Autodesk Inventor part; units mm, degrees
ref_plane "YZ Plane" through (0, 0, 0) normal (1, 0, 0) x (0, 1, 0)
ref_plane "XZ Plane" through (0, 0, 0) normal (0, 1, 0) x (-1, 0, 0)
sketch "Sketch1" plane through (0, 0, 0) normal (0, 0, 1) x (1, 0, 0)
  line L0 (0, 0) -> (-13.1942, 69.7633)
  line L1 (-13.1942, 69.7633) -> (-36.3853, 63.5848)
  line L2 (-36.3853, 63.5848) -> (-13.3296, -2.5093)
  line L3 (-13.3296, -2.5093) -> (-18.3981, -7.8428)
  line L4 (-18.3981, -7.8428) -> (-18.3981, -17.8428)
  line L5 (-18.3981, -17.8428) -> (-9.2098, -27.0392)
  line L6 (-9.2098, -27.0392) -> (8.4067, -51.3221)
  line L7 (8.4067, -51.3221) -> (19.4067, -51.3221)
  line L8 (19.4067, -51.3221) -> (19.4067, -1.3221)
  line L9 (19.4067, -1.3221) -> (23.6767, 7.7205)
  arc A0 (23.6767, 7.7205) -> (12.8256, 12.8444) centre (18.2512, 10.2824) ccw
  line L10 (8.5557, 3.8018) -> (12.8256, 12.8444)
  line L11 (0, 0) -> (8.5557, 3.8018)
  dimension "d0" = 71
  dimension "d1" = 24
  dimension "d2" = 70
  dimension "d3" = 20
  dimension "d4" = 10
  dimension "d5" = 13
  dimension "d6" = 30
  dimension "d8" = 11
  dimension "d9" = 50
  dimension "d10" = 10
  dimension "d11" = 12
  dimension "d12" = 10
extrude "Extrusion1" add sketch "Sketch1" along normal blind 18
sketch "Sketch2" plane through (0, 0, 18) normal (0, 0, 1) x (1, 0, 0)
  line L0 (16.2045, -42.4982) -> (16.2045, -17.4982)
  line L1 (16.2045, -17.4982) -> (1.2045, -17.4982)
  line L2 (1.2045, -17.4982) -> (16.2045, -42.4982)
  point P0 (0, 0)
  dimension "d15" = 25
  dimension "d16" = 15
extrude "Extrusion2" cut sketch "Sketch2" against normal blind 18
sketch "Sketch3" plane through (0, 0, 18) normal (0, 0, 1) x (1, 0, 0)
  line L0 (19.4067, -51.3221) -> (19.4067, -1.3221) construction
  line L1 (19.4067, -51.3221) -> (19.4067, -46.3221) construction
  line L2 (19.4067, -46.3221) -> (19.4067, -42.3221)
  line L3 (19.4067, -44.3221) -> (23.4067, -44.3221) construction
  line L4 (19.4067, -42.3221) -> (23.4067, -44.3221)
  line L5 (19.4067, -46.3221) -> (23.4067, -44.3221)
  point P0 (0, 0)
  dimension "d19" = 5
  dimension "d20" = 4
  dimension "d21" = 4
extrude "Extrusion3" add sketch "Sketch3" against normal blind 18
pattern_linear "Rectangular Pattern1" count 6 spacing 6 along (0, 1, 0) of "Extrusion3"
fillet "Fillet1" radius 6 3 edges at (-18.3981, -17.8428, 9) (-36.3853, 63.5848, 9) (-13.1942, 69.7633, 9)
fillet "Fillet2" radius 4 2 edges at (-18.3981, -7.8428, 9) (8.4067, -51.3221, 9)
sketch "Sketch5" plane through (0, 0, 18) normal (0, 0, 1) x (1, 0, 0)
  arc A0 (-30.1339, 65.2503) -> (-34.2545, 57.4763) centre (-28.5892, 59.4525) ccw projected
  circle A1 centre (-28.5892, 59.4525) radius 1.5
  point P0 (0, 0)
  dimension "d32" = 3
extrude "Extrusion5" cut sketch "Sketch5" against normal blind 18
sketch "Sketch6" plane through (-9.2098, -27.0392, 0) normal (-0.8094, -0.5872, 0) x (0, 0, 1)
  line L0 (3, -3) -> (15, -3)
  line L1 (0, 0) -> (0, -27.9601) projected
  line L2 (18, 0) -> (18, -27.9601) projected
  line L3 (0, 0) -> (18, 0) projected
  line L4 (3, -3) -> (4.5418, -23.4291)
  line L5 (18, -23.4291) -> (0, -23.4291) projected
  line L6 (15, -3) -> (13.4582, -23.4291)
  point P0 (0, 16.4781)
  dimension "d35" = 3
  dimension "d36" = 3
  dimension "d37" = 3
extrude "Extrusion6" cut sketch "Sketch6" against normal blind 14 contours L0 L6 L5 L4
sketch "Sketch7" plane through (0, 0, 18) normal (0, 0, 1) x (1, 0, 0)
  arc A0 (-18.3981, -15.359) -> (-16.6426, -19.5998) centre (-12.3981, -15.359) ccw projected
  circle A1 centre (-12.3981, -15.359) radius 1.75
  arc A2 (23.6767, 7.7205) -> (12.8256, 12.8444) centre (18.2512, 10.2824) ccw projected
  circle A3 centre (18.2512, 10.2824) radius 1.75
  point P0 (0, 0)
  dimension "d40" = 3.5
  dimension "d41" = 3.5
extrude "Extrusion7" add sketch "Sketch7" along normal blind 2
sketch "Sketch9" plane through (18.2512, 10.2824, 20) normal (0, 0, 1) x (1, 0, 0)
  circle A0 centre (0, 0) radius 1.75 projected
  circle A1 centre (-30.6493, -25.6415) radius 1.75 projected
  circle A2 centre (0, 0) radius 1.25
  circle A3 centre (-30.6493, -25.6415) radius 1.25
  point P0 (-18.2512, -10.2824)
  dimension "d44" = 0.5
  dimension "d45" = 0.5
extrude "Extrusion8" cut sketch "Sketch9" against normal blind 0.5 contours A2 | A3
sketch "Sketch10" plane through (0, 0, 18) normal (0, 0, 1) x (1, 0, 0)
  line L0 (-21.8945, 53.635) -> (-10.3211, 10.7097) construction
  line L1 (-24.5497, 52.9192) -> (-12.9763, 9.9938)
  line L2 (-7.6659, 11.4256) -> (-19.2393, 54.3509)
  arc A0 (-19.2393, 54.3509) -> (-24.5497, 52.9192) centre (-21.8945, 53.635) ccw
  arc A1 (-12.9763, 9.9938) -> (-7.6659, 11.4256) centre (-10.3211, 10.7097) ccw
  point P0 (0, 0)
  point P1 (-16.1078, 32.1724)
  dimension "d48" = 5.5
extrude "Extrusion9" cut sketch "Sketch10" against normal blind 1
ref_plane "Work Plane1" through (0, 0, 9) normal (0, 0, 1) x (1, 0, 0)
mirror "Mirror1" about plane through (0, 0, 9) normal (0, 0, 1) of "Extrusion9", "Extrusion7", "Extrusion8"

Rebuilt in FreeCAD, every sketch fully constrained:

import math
import FreeCAD as App
import Part
import Sketcher
Q = App.Units.Quantity


def edges_at(feature, points):
    """Names of the edges that pass closest to the given points."""
    edges = feature.Shape.Edges
    near = lambda p: min(range(len(edges)), key=lambda i: edges[i].distToShape(Part.Vertex(*p))[0])
    return sorted({f"Edge{near(p) + 1}" for p in points})


def add_polygon(sketch, points):
    """Adds a closed chain of lines whose ends are joined by coincident constraints."""
    first, n = sketch.GeometryCount, len(points)
    for a, b in zip(points, points[1:] + points[:1]):
        sketch.addGeometry(Part.LineSegment(App.Vector(*a, 0), App.Vector(*b, 0)), False)
    for i in range(n):
        sketch.addConstraint(Sketcher.Constraint("Coincident", first + i, 2, first + (i + 1) % n, 1))

doc = App.newDocument("Part")
body = doc.addObject("PartDesign::Body", "Body")

sketch1 = body.newObject("Sketcher::SketchObject", "Sketch")
sketch1.AttachmentSupport = (doc.getObject("XY_Plane"), [""])
sketch1.MapMode = "FlatFace"
sketch1.addGeometry([
    Part.LineSegment(App.Vector(9, 4, 0), App.Vector(0, 0, 0)),
    Part.LineSegment(App.Vector(0, 0, 0), App.Vector(-13, 70, 0)),
    Part.LineSegment(App.Vector(-13, 70, 0), App.Vector(-36, 64, 0)),
    Part.LineSegment(App.Vector(-36, 64, 0), App.Vector(-13, -3, 0)),
    Part.LineSegment(App.Vector(-13, -3, 0), App.Vector(-18, -8, 0)),
    Part.LineSegment(App.Vector(-18, -8, 0), App.Vector(-18, -18, 0)),
    Part.LineSegment(App.Vector(-18, -18, 0), App.Vector(-9, -27, 0)),
    Part.LineSegment(App.Vector(-9, -27, 0), App.Vector(8, -51, 0)),
    Part.LineSegment(App.Vector(8, -51, 0), App.Vector(19, -51, 0)),
    Part.LineSegment(App.Vector(19, -51, 0), App.Vector(19, -1, 0)),
    Part.LineSegment(App.Vector(19, -1, 0), App.Vector(24, 8, 0)),
    Part.ArcOfCircle(Part.Circle(App.Vector(18, 10, 0), App.Vector(0, 0, 1), 6), math.radians(-25), math.radians(155)),
    Part.LineSegment(App.Vector(13, 13, 0), App.Vector(9, 4, 0)),
], False)
sketch1.addConstraint([
    Sketcher.Constraint("Coincident", 0, 2, 1, 1),
    Sketcher.Constraint("Coincident", 1, 2, 2, 1),
    Sketcher.Constraint("Coincident", 2, 2, 3, 1),
    Sketcher.Constraint("Coincident", 3, 2, 4, 1),
    Sketcher.Constraint("Coincident", 4, 2, 5, 1),
    Sketcher.Constraint("Coincident", 5, 2, 6, 1),
    Sketcher.Constraint("Coincident", 6, 2, 7, 1),
    Sketcher.Constraint("Coincident", 7, 2, 8, 1),
    Sketcher.Constraint("Coincident", 8, 2, 9, 1),
    Sketcher.Constraint("Coincident", 9, 2, 10, 1),
    Sketcher.Constraint("Tangent", 10, 2, 11, 1),
    Sketcher.Constraint("Tangent", 11, 2, 12, 1),
    Sketcher.Constraint("Coincident", 12, 2, 0, 1),
    Sketcher.Constraint("Vertical", 5),
    Sketcher.Constraint("Horizontal", 8),
    Sketcher.Constraint("Vertical", 9),
    Sketcher.Constraint("Coincident", 0, 2, -1, 1),
    Sketcher.Constraint("Parallel", 10, 12),
    Sketcher.Constraint("Equal", 10, 12),
    Sketcher.Constraint("Radius", 11, 6.0),
    Sketcher.Constraint("DistanceX", 8, 1, 8, 2, 11.0),
    Sketcher.Constraint("DistanceY", 5, 2, 5, 1, 10.0),
    Sketcher.Constraint("DistanceY", 9, 1, 9, 2, 50.0),
    Sketcher.Constraint("Distance", 1, 71.0),
    Sketcher.Constraint("Distance", 2, 24.0),
    Sketcher.Constraint("Distance", 3, 70.0),
    Sketcher.Constraint("Distance", 6, 13.0),
    Sketcher.Constraint("Distance", 7, 30.0),
    Sketcher.Constraint("Distance", 10, 10.0),
    Sketcher.Constraint("Angle", 1, Q("100.7097 deg")),
    Sketcher.Constraint("Angle", 3, Q("-70.7696 deg")),
    Sketcher.Constraint("Angle", 4, Q("-133.5407 deg")),
    Sketcher.Constraint("Angle", 7, Q("-54.0403 deg")),
    Sketcher.Constraint("DistanceY", 6, 2, 3, 2, 24.53),
    Sketcher.Constraint("DistanceX", 9, 2, 10, 2, 4.27),
    Sketcher.Constraint("DistanceX", 4, 2, -1, 1, 18.398),
    Sketcher.Constraint("DistanceY", 7, 2, -1, 1, 51.322),
])
pad1 = body.newObject("PartDesign::Pad", "Pad")
pad1.Profile = sketch1
pad1.Length = 18

sketch2 = body.newObject("Sketcher::SketchObject", "Sketch001")
sketch2.AttachmentSupport = (doc.getObject("XY_Plane"), [""])
sketch2.MapMode = "FlatFace"
sketch2.AttachmentOffset = App.Placement(App.Vector(0, 0, 18), App.Rotation())
add_polygon(sketch2, [(1, -17), (16, -42), (16, -17)])
sketch2.addConstraint([
    Sketcher.Constraint("Vertical", 1),
    Sketcher.Constraint("Horizontal", 2),
    Sketcher.Constraint("DistanceX", 2, 2, 2, 1, 15.0),
    Sketcher.Constraint("DistanceY", 1, 1, 1, 2, 25.0),
    Sketcher.Constraint("DistanceX", -1, 1, 0, 2, 16.2045),
    Sketcher.Constraint("DistanceY", 0, 2, -1, 1, 42.4982),
])
pocket1 = body.newObject("PartDesign::Pocket", "Pocket")
pocket1.Profile = sketch2
pocket1.Length = 18

sketch3 = body.newObject("Sketcher::SketchObject", "Sketch002")
sketch3.AttachmentSupport = (doc.getObject("XY_Plane"), [""])
sketch3.MapMode = "FlatFace"
sketch3.AttachmentOffset = App.Placement(App.Vector(0, 0, 18), App.Rotation())
add_polygon(sketch3, [(19.4, -42.3), (19.4, -46.3), (23.4, -44.3)])
sketch3.addConstraint([
    Sketcher.Constraint("Vertical", 0),
    Sketcher.Constraint("Equal", 1, 2),
    Sketcher.Constraint("DistanceY", 0, 2, 0, 1, 4.0),
    Sketcher.Constraint("DistanceX", 0, 2, 1, 2, 4.0),
    Sketcher.Constraint("DistanceY", 0, 2, -1, 1, 46.322),
    Sketcher.Constraint("DistanceX", -1, 1, 0, 2, 19.4067),
])
pad2 = body.newObject("PartDesign::Pad", "Pad001")
pad2.Profile = sketch3
pad2.Length = 18
pad2.Reversed = True
doc.recompute()

linearpattern = body.newObject("PartDesign::LinearPattern", "LinearPattern")
linearpattern.Originals = [pad2]
linearpattern.Direction = (doc.getObject("Y_Axis"), [""])
linearpattern.Mode = "offset"
linearpattern.Offset = 6
linearpattern.Occurrences = 6
body.Tip = linearpattern
doc.recompute()

fillet = body.newObject("PartDesign::Fillet", "Fillet")
fillet.Base = (linearpattern, edges_at(linearpattern, [(-18.398, -17.843, 9), (-36.385, 63.585, 9), (-13.194, 69.763, 9)]))
fillet.Radius = 6
doc.recompute()

fillet2 = body.newObject("PartDesign::Fillet", "Fillet001")
fillet2.Base = (fillet, edges_at(fillet, [(-18.398, -7.843, 9), (8.407, -51.322, 9)]))
fillet2.Radius = 4

sketch4 = body.newObject("Sketcher::SketchObject", "Sketch003")
sketch4.AttachmentSupport = (doc.getObject("XY_Plane"), [""])
sketch4.MapMode = "FlatFace"
sketch4.AttachmentOffset = App.Placement(App.Vector(0, 0, 18), App.Rotation())
sketch4.addGeometry(Part.Circle(App.Vector(-28.6, 59.5, 0), App.Vector(0, 0, 1), 1.5), False)
sketch4.addConstraint([
    Sketcher.Constraint("Diameter", 0, 3.0),
    Sketcher.Constraint("DistanceX", 0, 3, -1, 1, 28.5892),
    Sketcher.Constraint("DistanceY", -1, 1, 0, 3, 59.4525),
])
pocket2 = body.newObject("PartDesign::Pocket", "Pocket001")
pocket2.Profile = sketch4
pocket2.Length = 18

sketch5 = body.newObject("Sketcher::SketchObject", "Sketch004")
sketch5.Placement = App.Placement(App.Vector(-9.2098, -27.0392, 0), App.Rotation(App.Vector(0, 0, 1), App.Vector(-0.587219907, 0.80942744, 0), App.Vector(-0.80942744, -0.587219907, 0), "ZXY"))
add_polygon(sketch5, [(15, -3), (3, -3), (5, -23), (13, -23)])
sketch5.addConstraint([
    Sketcher.Constraint("Horizontal", 0),
    Sketcher.Constraint("Horizontal", 2),
    Sketcher.Constraint("Equal", 1, 3),
    Sketcher.Constraint("DistanceX", -1, 1, 0, 2, 3.0),
    Sketcher.Constraint("DistanceY", 0, 2, -1, 1, 3.0),
    Sketcher.Constraint("DistanceX", 0, 2, 0, 1, 12.0),
    Sketcher.Constraint("DistanceX", 2, 1, 2, 2, 8.9164),
    Sketcher.Constraint("DistanceY", 1, 2, -1, 1, 23.429),
])
pocket3 = body.newObject("PartDesign::Pocket", "Pocket002")
pocket3.Profile = sketch5
pocket3.Length = 14

sketch6 = body.newObject("Sketcher::SketchObject", "Sketch005")
sketch6.AttachmentSupport = (doc.getObject("XY_Plane"), [""])
sketch6.MapMode = "FlatFace"
sketch6.AttachmentOffset = App.Placement(App.Vector(0, 0, 18), App.Rotation())
sketch6.addGeometry([
    Part.Circle(App.Vector(-12.4, -15.4, 0), App.Vector(0, 0, 1), 1.8),
    Part.Circle(App.Vector(18.3, 10.3, 0), App.Vector(0, 0, 1), 1.8),
], False)
sketch6.addConstraint([
    Sketcher.Constraint("Equal", 0, 1),
    Sketcher.Constraint("Diameter", 0, 3.5),
    Sketcher.Constraint("DistanceX", 0, 3, -1, 1, 12.398),
    Sketcher.Constraint("DistanceY", 0, 3, -1, 1, 15.359),
    Sketcher.Constraint("DistanceX", -1, 1, 1, 3, 18.2512),
    Sketcher.Constraint("DistanceY", -1, 1, 1, 3, 10.2824),
])
pad3 = body.newObject("PartDesign::Pad", "Pad002")
pad3.Profile = sketch6
pad3.Length = 2

sketch7 = body.newObject("Sketcher::SketchObject", "Sketch006")
sketch7.AttachmentSupport = (doc.getObject("XY_Plane"), [""])
sketch7.MapMode = "FlatFace"
sketch7.AttachmentOffset = App.Placement(App.Vector(0, 0, 20), App.Rotation())
sketch7.addGeometry([
    Part.Circle(App.Vector(18.3, 10.3, 0), App.Vector(0, 0, 1), 1.2),
    Part.Circle(App.Vector(-12.4, -15.4, 0), App.Vector(0, 0, 1), 1.2),
], False)
sketch7.addConstraint([
    Sketcher.Constraint("Equal", 0, 1),
    Sketcher.Constraint("Diameter", 0, 2.5),
    Sketcher.Constraint("DistanceX", 1, 3, -1, 1, 12.398),
    Sketcher.Constraint("DistanceY", 1, 3, -1, 1, 15.359),
    Sketcher.Constraint("DistanceX", -1, 1, 0, 3, 18.2512),
    Sketcher.Constraint("DistanceY", -1, 1, 0, 3, 10.2824),
])
pocket4 = body.newObject("PartDesign::Pocket", "Pocket003")
pocket4.Profile = sketch7
pocket4.Length = 0.5

sketch8 = body.newObject("Sketcher::SketchObject", "Sketch007")
sketch8.AttachmentSupport = (doc.getObject("XY_Plane"), [""])
sketch8.MapMode = "FlatFace"
sketch8.AttachmentOffset = App.Placement(App.Vector(0, 0, 18), App.Rotation())
sketch8.addGeometry([
    Part.ArcOfCircle(Part.Circle(App.Vector(-21.9, 53.6, 0), App.Vector(0, 0, 1), 2.8), math.radians(15), math.radians(195)),
    Part.LineSegment(App.Vector(-24.5, 52.9, 0), App.Vector(-13, 10, 0)),
    Part.ArcOfCircle(Part.Circle(App.Vector(-10.3, 10.7, 0), App.Vector(0, 0, 1), 2.8), math.radians(-165), math.radians(15)),
    Part.LineSegment(App.Vector(-7.7, 11.4, 0), App.Vector(-19.2, 54.4, 0)),
], False)
sketch8.addConstraint([
    Sketcher.Constraint("Tangent", 0, 2, 1, 1),
    Sketcher.Constraint("Tangent", 1, 2, 2, 1),
    Sketcher.Constraint("Tangent", 2, 2, 3, 1),
    Sketcher.Constraint("Tangent", 3, 2, 0, 1),
    Sketcher.Constraint("Equal", 0, 2),
    Sketcher.Constraint("Radius", 0, 2.75),
    Sketcher.Constraint("Angle", 1, Q("-74.911 deg")),
    Sketcher.Constraint("DistanceY", -1, 1, 0, 3, 53.635),
    Sketcher.Constraint("DistanceX", 2, 3, -1, 1, 10.321),
    Sketcher.Constraint("DistanceX", 3, 2, 1, 2, 6.263),
])
pocket5 = body.newObject("PartDesign::Pocket", "Pocket004")
pocket5.Profile = sketch8
pocket5.Length = 1
doc.recompute()

datumplane = body.newObject("PartDesign::Plane", "DatumPlane")
datumplane.AttachmentSupport = (doc.getObject("XY_Plane"), [""])
datumplane.MapMode = "FlatFace"
datumplane.AttachmentOffset = App.Placement(App.Vector(0, 0, 9), App.Rotation())
mirrored = body.newObject("PartDesign::Mirrored", "Mirrored")
mirrored.Originals = [pocket5, pad3, pocket4]
mirrored.MirrorPlane = (datumplane, [""])
body.Tip = mirrored

doc.recompute()
